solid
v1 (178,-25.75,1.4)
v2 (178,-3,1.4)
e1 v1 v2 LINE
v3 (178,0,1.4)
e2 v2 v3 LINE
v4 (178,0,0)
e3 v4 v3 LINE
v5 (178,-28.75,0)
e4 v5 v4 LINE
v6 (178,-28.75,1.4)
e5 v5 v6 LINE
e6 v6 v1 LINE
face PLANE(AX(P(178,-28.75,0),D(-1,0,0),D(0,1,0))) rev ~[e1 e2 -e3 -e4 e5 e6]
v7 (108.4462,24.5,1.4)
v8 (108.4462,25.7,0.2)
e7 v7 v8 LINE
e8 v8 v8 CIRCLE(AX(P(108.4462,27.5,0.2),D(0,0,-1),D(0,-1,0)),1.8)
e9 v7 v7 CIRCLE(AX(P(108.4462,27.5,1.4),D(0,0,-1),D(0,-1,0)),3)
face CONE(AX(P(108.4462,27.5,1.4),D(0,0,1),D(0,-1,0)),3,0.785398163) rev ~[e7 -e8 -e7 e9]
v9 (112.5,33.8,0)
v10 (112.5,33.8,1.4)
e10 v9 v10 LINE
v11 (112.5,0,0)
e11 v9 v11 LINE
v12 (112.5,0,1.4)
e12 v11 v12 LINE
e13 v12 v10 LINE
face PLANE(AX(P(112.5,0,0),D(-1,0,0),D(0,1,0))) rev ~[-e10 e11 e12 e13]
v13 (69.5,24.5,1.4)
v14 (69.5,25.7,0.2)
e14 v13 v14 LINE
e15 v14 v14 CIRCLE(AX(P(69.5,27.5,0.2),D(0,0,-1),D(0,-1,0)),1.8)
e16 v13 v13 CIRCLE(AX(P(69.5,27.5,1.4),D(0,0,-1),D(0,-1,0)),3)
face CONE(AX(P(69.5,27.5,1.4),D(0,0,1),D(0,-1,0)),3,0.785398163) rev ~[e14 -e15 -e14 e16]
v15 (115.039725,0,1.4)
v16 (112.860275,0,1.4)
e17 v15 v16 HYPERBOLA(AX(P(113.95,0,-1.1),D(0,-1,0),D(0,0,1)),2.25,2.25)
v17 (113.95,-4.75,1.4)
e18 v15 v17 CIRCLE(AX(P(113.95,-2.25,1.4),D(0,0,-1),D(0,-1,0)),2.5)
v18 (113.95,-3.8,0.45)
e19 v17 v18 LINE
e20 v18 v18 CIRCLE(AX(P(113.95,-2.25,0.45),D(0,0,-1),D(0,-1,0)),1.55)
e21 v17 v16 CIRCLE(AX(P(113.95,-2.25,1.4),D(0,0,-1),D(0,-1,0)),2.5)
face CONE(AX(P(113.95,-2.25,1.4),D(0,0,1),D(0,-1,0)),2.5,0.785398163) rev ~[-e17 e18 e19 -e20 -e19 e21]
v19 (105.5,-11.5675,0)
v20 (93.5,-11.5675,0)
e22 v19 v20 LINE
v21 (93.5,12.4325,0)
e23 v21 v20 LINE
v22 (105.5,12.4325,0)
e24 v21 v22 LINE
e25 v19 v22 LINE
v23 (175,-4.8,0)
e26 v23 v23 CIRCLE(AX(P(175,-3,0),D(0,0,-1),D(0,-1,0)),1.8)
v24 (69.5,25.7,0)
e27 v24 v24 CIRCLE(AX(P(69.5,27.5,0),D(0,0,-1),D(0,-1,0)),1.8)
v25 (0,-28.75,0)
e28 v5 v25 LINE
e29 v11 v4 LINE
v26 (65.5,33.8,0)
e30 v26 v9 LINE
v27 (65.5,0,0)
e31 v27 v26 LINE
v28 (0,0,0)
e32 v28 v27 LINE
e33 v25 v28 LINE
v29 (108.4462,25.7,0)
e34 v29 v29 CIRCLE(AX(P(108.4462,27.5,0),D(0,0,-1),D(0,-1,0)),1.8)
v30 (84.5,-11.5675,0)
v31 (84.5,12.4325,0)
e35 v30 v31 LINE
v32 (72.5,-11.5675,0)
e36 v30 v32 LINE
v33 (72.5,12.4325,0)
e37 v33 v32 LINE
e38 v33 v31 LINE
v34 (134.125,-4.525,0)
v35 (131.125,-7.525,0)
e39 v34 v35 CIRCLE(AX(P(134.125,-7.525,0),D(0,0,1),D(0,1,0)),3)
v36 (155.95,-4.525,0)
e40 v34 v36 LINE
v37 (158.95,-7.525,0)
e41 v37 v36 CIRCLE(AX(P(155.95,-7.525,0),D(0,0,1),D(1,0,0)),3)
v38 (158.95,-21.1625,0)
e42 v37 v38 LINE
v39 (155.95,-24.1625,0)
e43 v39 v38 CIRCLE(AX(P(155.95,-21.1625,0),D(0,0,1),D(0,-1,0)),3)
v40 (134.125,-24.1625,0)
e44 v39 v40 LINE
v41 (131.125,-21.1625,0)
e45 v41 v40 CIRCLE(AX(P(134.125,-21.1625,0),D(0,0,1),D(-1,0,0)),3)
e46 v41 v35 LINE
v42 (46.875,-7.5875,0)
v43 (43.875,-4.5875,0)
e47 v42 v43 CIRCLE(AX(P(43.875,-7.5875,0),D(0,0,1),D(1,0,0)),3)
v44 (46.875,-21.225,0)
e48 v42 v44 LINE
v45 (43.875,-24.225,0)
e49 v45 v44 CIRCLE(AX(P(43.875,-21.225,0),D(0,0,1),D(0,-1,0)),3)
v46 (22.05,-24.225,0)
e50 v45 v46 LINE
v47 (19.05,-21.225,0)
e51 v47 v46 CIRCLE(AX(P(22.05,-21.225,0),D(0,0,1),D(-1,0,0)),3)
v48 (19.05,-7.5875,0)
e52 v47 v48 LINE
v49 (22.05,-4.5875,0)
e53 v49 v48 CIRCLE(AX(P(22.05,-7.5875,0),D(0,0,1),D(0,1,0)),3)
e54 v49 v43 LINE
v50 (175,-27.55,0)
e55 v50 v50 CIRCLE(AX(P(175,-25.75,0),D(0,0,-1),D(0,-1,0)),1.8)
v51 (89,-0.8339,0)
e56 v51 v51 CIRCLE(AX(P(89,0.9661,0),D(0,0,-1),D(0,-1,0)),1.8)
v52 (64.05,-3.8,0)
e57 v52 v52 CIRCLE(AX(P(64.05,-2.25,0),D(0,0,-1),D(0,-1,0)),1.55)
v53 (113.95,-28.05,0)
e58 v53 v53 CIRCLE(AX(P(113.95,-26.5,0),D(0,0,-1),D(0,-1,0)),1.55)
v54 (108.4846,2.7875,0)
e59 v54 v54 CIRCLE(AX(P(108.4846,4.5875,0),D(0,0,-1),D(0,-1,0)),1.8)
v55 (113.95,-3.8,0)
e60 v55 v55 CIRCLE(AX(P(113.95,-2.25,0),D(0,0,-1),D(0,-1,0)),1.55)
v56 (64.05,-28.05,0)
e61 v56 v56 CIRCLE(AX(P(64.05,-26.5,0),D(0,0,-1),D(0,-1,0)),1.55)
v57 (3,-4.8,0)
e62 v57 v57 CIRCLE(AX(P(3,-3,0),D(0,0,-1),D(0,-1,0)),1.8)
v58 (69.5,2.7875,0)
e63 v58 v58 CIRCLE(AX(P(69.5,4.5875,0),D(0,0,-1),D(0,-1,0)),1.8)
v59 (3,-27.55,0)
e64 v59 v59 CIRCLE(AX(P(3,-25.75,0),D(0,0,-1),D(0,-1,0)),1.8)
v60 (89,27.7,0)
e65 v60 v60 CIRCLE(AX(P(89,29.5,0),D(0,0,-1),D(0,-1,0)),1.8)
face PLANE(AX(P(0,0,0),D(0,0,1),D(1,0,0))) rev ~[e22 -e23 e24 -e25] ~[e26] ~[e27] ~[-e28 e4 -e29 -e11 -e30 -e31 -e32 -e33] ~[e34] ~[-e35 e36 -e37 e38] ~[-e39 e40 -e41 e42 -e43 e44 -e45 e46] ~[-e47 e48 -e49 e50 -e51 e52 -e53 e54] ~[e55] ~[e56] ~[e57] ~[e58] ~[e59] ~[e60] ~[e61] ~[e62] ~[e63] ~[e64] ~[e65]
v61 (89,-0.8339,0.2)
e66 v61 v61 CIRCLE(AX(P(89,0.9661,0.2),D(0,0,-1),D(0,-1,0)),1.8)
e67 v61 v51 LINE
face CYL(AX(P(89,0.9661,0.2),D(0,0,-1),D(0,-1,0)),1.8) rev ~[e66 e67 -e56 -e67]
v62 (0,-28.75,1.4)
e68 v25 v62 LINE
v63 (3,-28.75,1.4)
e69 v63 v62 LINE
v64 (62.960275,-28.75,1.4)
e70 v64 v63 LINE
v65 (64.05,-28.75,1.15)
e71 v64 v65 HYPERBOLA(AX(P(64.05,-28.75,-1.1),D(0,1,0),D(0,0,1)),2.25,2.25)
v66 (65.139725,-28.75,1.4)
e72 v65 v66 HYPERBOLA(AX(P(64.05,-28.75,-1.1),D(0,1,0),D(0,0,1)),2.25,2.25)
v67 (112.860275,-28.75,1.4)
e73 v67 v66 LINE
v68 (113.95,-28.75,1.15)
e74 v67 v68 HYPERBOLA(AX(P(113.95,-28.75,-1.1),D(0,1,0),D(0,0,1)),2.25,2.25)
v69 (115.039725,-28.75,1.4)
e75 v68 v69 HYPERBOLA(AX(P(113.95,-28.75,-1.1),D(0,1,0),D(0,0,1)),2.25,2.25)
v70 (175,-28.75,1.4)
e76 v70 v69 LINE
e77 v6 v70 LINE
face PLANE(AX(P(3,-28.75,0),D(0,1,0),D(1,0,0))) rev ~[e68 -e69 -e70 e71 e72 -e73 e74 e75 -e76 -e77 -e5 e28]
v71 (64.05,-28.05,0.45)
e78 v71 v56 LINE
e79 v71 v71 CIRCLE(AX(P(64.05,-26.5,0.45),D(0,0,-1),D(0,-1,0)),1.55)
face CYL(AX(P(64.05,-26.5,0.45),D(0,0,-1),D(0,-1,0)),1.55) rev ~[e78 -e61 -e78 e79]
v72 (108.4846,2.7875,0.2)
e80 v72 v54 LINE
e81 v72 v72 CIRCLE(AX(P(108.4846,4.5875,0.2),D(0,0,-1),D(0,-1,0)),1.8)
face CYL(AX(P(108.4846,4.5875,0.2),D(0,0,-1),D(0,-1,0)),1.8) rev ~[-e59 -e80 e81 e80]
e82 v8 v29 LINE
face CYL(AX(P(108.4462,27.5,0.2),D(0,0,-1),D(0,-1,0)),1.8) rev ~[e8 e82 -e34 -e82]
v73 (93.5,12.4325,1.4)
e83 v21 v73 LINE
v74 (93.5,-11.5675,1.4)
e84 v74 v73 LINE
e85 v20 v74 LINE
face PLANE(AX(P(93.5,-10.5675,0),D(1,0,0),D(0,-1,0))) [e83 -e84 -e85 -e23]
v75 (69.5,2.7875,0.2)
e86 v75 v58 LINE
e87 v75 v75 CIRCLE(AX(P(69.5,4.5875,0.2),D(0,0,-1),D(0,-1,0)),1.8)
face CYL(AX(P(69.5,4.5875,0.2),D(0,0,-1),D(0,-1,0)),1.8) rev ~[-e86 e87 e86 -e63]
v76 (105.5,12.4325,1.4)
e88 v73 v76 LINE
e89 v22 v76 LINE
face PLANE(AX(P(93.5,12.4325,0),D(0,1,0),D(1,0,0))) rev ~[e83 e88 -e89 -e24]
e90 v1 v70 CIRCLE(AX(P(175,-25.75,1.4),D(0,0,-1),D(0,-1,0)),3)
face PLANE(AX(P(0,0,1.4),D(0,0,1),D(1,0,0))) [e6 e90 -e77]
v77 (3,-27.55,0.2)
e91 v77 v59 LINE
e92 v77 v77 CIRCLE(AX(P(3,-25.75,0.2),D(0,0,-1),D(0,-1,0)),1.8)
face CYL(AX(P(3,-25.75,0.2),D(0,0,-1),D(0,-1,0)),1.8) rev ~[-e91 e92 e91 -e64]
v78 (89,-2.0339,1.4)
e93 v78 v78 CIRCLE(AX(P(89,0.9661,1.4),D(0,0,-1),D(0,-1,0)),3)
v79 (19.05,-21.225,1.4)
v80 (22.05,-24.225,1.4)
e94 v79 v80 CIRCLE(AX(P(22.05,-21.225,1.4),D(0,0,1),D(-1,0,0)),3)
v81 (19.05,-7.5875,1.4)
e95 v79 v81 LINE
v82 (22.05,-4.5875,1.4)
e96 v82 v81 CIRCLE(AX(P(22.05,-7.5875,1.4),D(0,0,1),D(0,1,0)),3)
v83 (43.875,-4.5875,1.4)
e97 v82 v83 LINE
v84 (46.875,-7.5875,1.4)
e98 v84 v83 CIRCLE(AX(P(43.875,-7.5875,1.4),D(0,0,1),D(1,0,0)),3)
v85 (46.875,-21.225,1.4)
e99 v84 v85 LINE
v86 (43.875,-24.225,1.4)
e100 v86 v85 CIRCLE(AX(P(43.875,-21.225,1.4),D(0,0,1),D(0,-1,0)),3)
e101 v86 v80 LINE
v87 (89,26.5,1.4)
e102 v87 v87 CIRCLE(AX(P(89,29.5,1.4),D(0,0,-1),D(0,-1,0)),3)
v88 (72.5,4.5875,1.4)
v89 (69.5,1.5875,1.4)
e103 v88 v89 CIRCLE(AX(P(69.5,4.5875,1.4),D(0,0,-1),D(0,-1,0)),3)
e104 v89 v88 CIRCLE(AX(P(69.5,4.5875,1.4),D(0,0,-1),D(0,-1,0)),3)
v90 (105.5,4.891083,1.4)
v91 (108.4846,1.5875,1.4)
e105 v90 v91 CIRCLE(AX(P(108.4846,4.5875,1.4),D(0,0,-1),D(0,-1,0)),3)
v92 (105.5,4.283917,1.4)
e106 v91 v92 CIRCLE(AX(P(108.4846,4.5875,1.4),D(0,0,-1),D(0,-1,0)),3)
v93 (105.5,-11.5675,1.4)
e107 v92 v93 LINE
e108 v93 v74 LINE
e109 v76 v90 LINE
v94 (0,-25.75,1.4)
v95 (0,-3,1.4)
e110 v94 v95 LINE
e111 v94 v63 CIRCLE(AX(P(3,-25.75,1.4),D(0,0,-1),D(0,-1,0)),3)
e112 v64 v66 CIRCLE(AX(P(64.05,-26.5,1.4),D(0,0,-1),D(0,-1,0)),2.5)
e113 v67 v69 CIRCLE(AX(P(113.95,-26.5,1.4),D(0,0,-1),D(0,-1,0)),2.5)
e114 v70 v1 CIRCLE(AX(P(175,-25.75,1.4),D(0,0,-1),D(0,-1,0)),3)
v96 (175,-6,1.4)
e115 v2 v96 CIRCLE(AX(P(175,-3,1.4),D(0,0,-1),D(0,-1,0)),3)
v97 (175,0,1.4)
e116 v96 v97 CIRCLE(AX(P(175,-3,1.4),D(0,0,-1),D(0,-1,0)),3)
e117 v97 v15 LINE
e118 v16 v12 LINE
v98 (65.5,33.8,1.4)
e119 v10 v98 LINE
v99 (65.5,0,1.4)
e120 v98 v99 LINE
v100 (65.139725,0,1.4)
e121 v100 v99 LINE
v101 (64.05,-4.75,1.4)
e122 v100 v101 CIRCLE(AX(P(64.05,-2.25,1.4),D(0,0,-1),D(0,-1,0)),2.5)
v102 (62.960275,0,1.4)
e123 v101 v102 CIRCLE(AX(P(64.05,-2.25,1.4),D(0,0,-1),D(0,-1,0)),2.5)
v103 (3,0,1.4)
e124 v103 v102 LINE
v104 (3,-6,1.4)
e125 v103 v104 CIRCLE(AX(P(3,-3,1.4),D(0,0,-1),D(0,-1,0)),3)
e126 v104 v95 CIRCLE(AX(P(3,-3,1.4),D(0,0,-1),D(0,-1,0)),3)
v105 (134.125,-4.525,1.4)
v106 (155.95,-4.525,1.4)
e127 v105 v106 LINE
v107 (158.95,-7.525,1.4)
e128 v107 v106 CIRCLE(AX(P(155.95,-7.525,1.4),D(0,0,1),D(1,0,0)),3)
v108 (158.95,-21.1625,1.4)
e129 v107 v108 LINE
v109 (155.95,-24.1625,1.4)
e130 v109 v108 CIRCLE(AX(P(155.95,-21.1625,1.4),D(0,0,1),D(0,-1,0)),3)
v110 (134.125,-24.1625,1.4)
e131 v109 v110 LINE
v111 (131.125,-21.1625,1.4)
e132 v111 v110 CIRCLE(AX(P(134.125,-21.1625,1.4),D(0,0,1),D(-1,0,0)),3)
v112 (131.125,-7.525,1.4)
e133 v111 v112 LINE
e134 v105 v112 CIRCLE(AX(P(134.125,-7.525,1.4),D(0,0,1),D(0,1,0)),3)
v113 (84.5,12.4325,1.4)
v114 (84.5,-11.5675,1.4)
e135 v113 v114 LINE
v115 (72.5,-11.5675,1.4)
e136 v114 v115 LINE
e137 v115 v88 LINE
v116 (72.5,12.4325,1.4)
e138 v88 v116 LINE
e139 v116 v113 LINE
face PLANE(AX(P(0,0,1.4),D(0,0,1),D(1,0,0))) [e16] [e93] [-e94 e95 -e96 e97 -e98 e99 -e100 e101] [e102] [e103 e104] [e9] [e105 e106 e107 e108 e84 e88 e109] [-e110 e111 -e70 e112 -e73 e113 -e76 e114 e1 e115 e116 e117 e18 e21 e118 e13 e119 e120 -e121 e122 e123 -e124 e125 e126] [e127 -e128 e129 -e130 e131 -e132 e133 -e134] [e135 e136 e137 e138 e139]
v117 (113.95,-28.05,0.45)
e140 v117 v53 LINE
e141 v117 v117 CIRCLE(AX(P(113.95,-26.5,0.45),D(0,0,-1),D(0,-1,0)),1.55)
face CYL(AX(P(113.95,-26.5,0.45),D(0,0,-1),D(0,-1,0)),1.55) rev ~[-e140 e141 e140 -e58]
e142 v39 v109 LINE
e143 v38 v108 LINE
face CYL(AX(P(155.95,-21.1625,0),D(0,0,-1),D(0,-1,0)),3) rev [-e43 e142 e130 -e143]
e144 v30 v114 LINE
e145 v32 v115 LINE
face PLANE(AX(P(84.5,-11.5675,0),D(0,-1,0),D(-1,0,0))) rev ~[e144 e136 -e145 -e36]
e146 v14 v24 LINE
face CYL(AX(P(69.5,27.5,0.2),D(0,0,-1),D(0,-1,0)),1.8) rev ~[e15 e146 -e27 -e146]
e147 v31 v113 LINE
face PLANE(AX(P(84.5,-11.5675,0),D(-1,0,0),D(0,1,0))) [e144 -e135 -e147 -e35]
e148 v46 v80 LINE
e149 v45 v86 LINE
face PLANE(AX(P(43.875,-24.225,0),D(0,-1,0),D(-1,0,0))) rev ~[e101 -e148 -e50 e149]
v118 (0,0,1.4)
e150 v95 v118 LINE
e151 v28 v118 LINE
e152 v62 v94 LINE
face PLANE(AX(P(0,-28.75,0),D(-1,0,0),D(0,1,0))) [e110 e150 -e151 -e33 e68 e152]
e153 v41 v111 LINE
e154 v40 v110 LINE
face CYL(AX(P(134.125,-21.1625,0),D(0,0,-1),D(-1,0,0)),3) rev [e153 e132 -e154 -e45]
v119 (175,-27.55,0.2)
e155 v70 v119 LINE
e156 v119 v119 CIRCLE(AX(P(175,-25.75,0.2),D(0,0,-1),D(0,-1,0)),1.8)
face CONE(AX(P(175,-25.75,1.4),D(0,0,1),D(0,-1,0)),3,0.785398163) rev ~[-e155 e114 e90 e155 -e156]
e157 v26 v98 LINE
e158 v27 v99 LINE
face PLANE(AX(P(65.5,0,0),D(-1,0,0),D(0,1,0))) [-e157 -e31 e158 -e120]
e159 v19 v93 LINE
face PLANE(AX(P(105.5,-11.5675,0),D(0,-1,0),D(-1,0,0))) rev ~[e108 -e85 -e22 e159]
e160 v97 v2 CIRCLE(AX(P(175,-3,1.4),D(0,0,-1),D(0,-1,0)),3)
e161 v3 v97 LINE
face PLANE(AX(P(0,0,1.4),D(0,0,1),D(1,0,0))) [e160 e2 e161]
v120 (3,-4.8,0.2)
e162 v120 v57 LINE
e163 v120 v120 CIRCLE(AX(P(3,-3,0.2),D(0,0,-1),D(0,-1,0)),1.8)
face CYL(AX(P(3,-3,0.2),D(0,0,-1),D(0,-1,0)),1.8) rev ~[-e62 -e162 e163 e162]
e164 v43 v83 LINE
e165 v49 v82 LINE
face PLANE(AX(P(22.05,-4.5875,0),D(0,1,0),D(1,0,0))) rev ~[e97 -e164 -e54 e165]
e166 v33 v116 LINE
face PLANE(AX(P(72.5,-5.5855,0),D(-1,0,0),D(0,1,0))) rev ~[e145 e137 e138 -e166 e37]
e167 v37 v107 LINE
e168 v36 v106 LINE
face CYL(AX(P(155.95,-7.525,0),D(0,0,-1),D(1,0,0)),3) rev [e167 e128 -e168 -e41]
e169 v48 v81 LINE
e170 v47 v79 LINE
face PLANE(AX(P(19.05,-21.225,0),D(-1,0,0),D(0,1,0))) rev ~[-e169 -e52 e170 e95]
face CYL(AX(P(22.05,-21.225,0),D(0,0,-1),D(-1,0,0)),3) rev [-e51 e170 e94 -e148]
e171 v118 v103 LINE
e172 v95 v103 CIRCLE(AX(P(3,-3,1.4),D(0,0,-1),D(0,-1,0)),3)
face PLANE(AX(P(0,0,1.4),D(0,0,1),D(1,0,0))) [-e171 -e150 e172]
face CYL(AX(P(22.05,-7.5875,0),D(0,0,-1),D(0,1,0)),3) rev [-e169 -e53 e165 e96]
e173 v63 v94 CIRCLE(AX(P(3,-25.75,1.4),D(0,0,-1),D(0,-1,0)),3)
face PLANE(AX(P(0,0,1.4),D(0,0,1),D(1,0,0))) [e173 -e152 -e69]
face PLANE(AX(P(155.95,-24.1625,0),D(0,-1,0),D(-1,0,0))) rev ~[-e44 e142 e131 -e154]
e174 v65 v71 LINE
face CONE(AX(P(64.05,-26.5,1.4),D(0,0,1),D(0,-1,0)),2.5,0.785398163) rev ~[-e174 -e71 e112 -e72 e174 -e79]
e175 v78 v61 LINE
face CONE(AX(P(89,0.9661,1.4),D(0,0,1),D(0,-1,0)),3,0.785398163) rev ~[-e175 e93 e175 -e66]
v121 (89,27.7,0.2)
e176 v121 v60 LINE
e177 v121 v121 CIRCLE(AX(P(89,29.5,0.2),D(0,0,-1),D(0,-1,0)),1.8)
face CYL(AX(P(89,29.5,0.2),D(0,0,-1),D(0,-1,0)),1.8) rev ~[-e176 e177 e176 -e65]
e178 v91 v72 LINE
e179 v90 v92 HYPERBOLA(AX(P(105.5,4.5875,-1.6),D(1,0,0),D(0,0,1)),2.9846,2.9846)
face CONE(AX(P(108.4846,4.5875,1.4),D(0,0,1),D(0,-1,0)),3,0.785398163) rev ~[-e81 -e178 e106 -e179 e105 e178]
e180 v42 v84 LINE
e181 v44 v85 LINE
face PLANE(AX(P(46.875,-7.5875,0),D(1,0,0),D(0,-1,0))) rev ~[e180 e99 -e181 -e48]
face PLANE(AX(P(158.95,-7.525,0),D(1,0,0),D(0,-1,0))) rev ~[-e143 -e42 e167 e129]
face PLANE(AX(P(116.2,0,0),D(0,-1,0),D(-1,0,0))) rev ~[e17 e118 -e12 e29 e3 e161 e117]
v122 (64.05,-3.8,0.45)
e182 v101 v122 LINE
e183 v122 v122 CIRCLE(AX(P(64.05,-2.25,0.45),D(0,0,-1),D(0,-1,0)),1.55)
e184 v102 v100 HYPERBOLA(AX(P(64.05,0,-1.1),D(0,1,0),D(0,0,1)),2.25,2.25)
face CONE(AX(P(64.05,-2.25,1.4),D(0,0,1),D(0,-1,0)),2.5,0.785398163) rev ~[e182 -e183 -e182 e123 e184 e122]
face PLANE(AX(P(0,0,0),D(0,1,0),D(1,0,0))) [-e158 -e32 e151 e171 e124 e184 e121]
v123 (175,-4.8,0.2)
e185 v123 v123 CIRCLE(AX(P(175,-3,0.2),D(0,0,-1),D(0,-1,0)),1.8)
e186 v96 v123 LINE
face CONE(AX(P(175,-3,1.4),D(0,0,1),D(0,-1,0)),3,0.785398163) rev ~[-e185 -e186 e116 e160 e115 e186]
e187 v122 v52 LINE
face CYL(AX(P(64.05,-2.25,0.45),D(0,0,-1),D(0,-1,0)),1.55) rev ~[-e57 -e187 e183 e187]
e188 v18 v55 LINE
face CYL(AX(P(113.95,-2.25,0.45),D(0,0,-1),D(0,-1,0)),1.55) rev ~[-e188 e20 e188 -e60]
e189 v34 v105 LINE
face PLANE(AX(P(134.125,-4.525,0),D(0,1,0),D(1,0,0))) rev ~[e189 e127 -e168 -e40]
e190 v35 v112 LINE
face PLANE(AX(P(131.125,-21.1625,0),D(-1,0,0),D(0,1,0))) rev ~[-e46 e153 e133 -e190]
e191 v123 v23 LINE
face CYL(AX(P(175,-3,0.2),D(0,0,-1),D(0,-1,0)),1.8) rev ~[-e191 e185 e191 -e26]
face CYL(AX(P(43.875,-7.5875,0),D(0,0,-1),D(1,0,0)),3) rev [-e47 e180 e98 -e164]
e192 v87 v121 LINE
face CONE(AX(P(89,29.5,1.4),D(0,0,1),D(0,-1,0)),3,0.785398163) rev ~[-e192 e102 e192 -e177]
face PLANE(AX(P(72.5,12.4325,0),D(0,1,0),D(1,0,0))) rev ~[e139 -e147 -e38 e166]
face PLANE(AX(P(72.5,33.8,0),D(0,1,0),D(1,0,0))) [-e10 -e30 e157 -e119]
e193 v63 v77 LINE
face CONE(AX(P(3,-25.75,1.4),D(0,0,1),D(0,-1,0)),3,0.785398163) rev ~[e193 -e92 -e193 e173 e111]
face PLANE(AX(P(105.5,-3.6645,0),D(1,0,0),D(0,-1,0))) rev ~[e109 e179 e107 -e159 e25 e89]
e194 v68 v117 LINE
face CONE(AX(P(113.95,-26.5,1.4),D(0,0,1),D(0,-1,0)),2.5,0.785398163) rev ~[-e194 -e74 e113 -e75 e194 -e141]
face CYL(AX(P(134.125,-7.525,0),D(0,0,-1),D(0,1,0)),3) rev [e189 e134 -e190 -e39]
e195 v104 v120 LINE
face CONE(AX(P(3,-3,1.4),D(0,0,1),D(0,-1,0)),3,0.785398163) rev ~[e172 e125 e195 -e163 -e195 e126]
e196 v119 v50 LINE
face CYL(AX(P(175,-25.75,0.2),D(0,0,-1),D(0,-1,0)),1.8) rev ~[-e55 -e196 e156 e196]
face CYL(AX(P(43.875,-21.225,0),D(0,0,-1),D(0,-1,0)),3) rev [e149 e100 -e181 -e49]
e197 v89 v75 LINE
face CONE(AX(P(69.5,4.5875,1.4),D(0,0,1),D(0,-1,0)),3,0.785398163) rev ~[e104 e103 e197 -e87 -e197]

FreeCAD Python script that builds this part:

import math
import FreeCAD as App
import Part
import Sketcher

doc = App.newDocument("Part")
body = doc.addObject("PartDesign::Body", "Body")

# Sketch on XY plane
sketch1 = doc.addObject("Sketcher::SketchObject", "Sketch")
body.addObject(sketch1)
sketch1.AttachmentSupport = (doc.XY_Plane, [""])
sketch1.MapMode = "FlatFace"
sketch1.addGeometry(Part.LineSegment(App.Vector(0, 0, 0), App.Vector(0, -28.8, 0)), False)
sketch1.addGeometry(Part.LineSegment(App.Vector(0, -28.8, 0), App.Vector(178, -28.8, 0)), False)
sketch1.addGeometry(Part.LineSegment(App.Vector(178, -28.8, 0), App.Vector(178, 0, 0)), False)
sketch1.addGeometry(Part.LineSegment(App.Vector(178, 0, 0), App.Vector(112.5, 0, 0)), False)
sketch1.addGeometry(Part.LineSegment(App.Vector(112.5, 0, 0), App.Vector(112.5, 33.8, 0)), False)
sketch1.addGeometry(Part.LineSegment(App.Vector(112.5, 33.8, 0), App.Vector(65.5, 33.8, 0)), False)
sketch1.addGeometry(Part.LineSegment(App.Vector(65.5, 33.8, 0), App.Vector(65.5, 0, 0)), False)
sketch1.addGeometry(Part.LineSegment(App.Vector(65.5, 0, 0), App.Vector(0, 0, 0)), False)
sketch1.addGeometry(Part.LineSegment(App.Vector(43.9, -24.2, 0), App.Vector(22.1, -24.2, 0)), False)
sketch1.addGeometry(Part.ArcOfCircle(Part.Circle(App.Vector(22.1, -21.2, 0), App.Vector(0, 0, 1), 3), math.radians(180), math.radians(270)), False)
sketch1.addGeometry(Part.LineSegment(App.Vector(19.1, -21.2, 0), App.Vector(19.1, -7.6, 0)), False)
sketch1.addGeometry(Part.ArcOfCircle(Part.Circle(App.Vector(22.1, -7.6, 0), App.Vector(0, 0, 1), 3), math.radians(90), math.radians(180)), False)
sketch1.addGeometry(Part.LineSegment(App.Vector(22.1, -4.6, 0), App.Vector(43.9, -4.6, 0)), False)
sketch1.addGeometry(Part.ArcOfCircle(Part.Circle(App.Vector(43.9, -7.6, 0), App.Vector(0, 0, 1), 3), math.radians(0), math.radians(90)), False)
sketch1.addGeometry(Part.LineSegment(App.Vector(46.9, -7.6, 0), App.Vector(46.9, -21.2, 0)), False)
sketch1.addGeometry(Part.ArcOfCircle(Part.Circle(App.Vector(43.9, -21.2, 0), App.Vector(0, 0, 1), 3), math.radians(-90), math.radians(0)), False)
sketch1.addGeometry(Part.LineSegment(App.Vector(72.5, 12.4, 0), App.Vector(84.5, 12.4, 0)), False)
sketch1.addGeometry(Part.LineSegment(App.Vector(84.5, 12.4, 0), App.Vector(84.5, -11.6, 0)), False)
sketch1.addGeometry(Part.LineSegment(App.Vector(84.5, -11.6, 0), App.Vector(72.5, -11.6, 0)), False)
sketch1.addGeometry(Part.LineSegment(App.Vector(72.5, -11.6, 0), App.Vector(72.5, 12.4, 0)), False)
sketch1.addGeometry(Part.LineSegment(App.Vector(105.5, -11.6, 0), App.Vector(93.5, -11.6, 0)), False)
sketch1.addGeometry(Part.LineSegment(App.Vector(93.5, -11.6, 0), App.Vector(93.5, 12.4, 0)), False)
sketch1.addGeometry(Part.LineSegment(App.Vector(93.5, 12.4, 0), App.Vector(105.5, 12.4, 0)), False)
sketch1.addGeometry(Part.LineSegment(App.Vector(105.5, 12.4, 0), App.Vector(105.5, -11.6, 0)), False)
sketch1.addGeometry(Part.LineSegment(App.Vector(134.1, -4.5, 0), App.Vector(155.9, -4.5, 0)), False)
sketch1.addGeometry(Part.ArcOfCircle(Part.Circle(App.Vector(155.9, -7.5, 0), App.Vector(0, 0, 1), 3), math.radians(0), math.radians(90)), False)
sketch1.addGeometry(Part.LineSegment(App.Vector(158.9, -7.5, 0), App.Vector(158.9, -21.2, 0)), False)
sketch1.addGeometry(Part.ArcOfCircle(Part.Circle(App.Vector(155.9, -21.2, 0), App.Vector(0, 0, 1), 3), math.radians(-90), math.radians(0)), False)
sketch1.addGeometry(Part.LineSegment(App.Vector(155.9, -24.2, 0), App.Vector(134.1, -24.2, 0)), False)
sketch1.addGeometry(Part.ArcOfCircle(Part.Circle(App.Vector(134.1, -21.2, 0), App.Vector(0, 0, 1), 3), math.radians(180), math.radians(270)), False)
sketch1.addGeometry(Part.LineSegment(App.Vector(131.1, -21.2, 0), App.Vector(131.1, -7.5, 0)), False)
sketch1.addGeometry(Part.ArcOfCircle(Part.Circle(App.Vector(134.1, -7.5, 0), App.Vector(0, 0, 1), 3), math.radians(90), math.radians(180)), False)
sketch1.addConstraint(Sketcher.Constraint("Coincident", 0, 2, 1, 1))
sketch1.addConstraint(Sketcher.Constraint("Coincident", 1, 2, 2, 1))
sketch1.addConstraint(Sketcher.Constraint("Coincident", 2, 2, 3, 1))
sketch1.addConstraint(Sketcher.Constraint("Coincident", 3, 2, 4, 1))
sketch1.addConstraint(Sketcher.Constraint("Coincident", 4, 2, 5, 1))
sketch1.addConstraint(Sketcher.Constraint("Coincident", 5, 2, 6, 1))
sketch1.addConstraint(Sketcher.Constraint("Coincident", 6, 2, 7, 1))
sketch1.addConstraint(Sketcher.Constraint("Coincident", 7, 2, 0, 1))
sketch1.addConstraint(Sketcher.Constraint("Tangent", 8, 2, 9, 2))
sketch1.addConstraint(Sketcher.Constraint("Tangent", 9, 1, 10, 1))
sketch1.addConstraint(Sketcher.Constraint("Tangent", 10, 2, 11, 2))
sketch1.addConstraint(Sketcher.Constraint("Tangent", 11, 1, 12, 1))
sketch1.addConstraint(Sketcher.Constraint("Tangent", 12, 2, 13, 2))
sketch1.addConstraint(Sketcher.Constraint("Tangent", 13, 1, 14, 1))
sketch1.addConstraint(Sketcher.Constraint("Tangent", 14, 2, 15, 2))
sketch1.addConstraint(Sketcher.Constraint("Tangent", 15, 1, 8, 1))
sketch1.addConstraint(Sketcher.Constraint("Coincident", 16, 2, 17, 1))
sketch1.addConstraint(Sketcher.Constraint("Coincident", 17, 2, 18, 1))
sketch1.addConstraint(Sketcher.Constraint("Coincident", 18, 2, 19, 1))
sketch1.addConstraint(Sketcher.Constraint("Coincident", 19, 2, 16, 1))
sketch1.addConstraint(Sketcher.Constraint("Coincident", 20, 2, 21, 1))
sketch1.addConstraint(Sketcher.Constraint("Coincident", 21, 2, 22, 1))
sketch1.addConstraint(Sketcher.Constraint("Coincident", 22, 2, 23, 1))
sketch1.addConstraint(Sketcher.Constraint("Coincident", 23, 2, 20, 1))
sketch1.addConstraint(Sketcher.Constraint("Tangent", 24, 2, 25, 2))
sketch1.addConstraint(Sketcher.Constraint("Tangent", 25, 1, 26, 1))
sketch1.addConstraint(Sketcher.Constraint("Tangent", 26, 2, 27, 2))
sketch1.addConstraint(Sketcher.Constraint("Tangent", 27, 1, 28, 1))
sketch1.addConstraint(Sketcher.Constraint("Tangent", 28, 2, 29, 2))
sketch1.addConstraint(Sketcher.Constraint("Tangent", 29, 1, 30, 1))
sketch1.addConstraint(Sketcher.Constraint("Tangent", 30, 2, 31, 2))
sketch1.addConstraint(Sketcher.Constraint("Tangent", 31, 1, 24, 1))
sketch1.addConstraint(Sketcher.Constraint("Vertical", 0))
sketch1.addConstraint(Sketcher.Constraint("Horizontal", 1))
sketch1.addConstraint(Sketcher.Constraint("Vertical", 2))
sketch1.addConstraint(Sketcher.Constraint("Horizontal", 3))
sketch1.addConstraint(Sketcher.Constraint("Vertical", 4))
sketch1.addConstraint(Sketcher.Constraint("Horizontal", 5))
sketch1.addConstraint(Sketcher.Constraint("Vertical", 6))
sketch1.addConstraint(Sketcher.Constraint("Horizontal", 7))
sketch1.addConstraint(Sketcher.Constraint("Horizontal", 8))
sketch1.addConstraint(Sketcher.Constraint("Vertical", 10))
sketch1.addConstraint(Sketcher.Constraint("Horizontal", 12))
sketch1.addConstraint(Sketcher.Constraint("Vertical", 14))
sketch1.addConstraint(Sketcher.Constraint("Horizontal", 16))
sketch1.addConstraint(Sketcher.Constraint("Vertical", 17))
sketch1.addConstraint(Sketcher.Constraint("Horizontal", 18))
sketch1.addConstraint(Sketcher.Constraint("Vertical", 19))
sketch1.addConstraint(Sketcher.Constraint("Horizontal", 20))
sketch1.addConstraint(Sketcher.Constraint("Vertical", 21))
sketch1.addConstraint(Sketcher.Constraint("Horizontal", 22))
sketch1.addConstraint(Sketcher.Constraint("Vertical", 23))
sketch1.addConstraint(Sketcher.Constraint("Horizontal", 24))
sketch1.addConstraint(Sketcher.Constraint("Vertical", 26))
sketch1.addConstraint(Sketcher.Constraint("Horizontal", 28))
sketch1.addConstraint(Sketcher.Constraint("Vertical", 30))
sketch1.addConstraint(Sketcher.Constraint("Coincident", 7, 2, -1, 1))
sketch1.addConstraint(Sketcher.Constraint("Equal", 9, 11))
sketch1.addConstraint(Sketcher.Constraint("Equal", 11, 13))
sketch1.addConstraint(Sketcher.Constraint("Equal", 13, 15))
sketch1.addConstraint(Sketcher.Constraint("Equal", 15, 25))
sketch1.addConstraint(Sketcher.Constraint("Equal", 25, 27))
sketch1.addConstraint(Sketcher.Constraint("Equal", 27, 29))
sketch1.addConstraint(Sketcher.Constraint("Equal", 29, 31))
sketch1.addConstraint(Sketcher.Constraint("PointOnObject", 2, 2, -1))
sketch1.addConstraint(Sketcher.Constraint("Horizontal", 18, 2, 20, 2))
sketch1.addConstraint(Sketcher.Constraint("Horizontal", 19, 2, 21, 2))
sketch1.addConstraint(Sketcher.Constraint("Equal", 3, 7))
sketch1.addConstraint(Sketcher.Constraint("Equal", 18, 20))
sketch1.addConstraint(Sketcher.Constraint("Equal", 12, 24))
sketch1.addConstraint(Sketcher.Constraint("Equal", 14, 26))
sketch1.addConstraint(Sketcher.Constraint("Radius", 9, 3.0))
sketch1.addConstraint(Sketcher.Constraint("DistanceX", 1, 1, 1, 2, 178.0))
sketch1.addConstraint(Sketcher.Constraint("DistanceX", 5, 2, 5, 1, 47.0))
sketch1.addConstraint(Sketcher.Constraint("DistanceX", 16, 1, 16, 2, 12.0))
sketch1.addConstraint(Sketcher.Constraint("DistanceY", 17, 2, 17, 1, 24.0))
sketch1.addConstraint(Sketcher.Constraint("DistanceY", 4, 1, 4, 2, 33.8))
sketch1.addConstraint(Sketcher.Constraint("DistanceX", 6, 2, 16, 2, 19.0))
sketch1.addConstraint(Sketcher.Constraint("DistanceX", 17, 2, 20, 2, 9.0))
sketch1.addConstraint(Sketcher.Constraint("DistanceY", 0, 2, 0, 1, 28.75))
sketch1.addConstraint(Sketcher.Constraint("DistanceY", 15, 3, 25, 3, 13.7))
sketch1.addConstraint(Sketcher.Constraint("DistanceX", 11, 3, 25, 3, 133.9))
sketch1.addConstraint(Sketcher.Constraint("DistanceX", 8, 2, 8, 1, 21.825))
sketch1.addConstraint(Sketcher.Constraint("DistanceX", -1, 1, 9, 3, 22.05))
sketch1.addConstraint(Sketcher.Constraint("DistanceY", 13, 1, 16, 2, 20.02))
sketch1.addConstraint(Sketcher.Constraint("DistanceY", 10, 1, 10, 2, 13.6375))
sketch1.addConstraint(Sketcher.Constraint("DistanceY", 9, 3, -1, 1, 21.225))
pad1 = doc.addObject("PartDesign::Pad", "Pad")
body.addObject(pad1)
pad1.Profile = sketch1
pad1.Length = 1.4

# Sketch on XY plane
sketch2 = doc.addObject("Sketcher::SketchObject", "Sketch001")
body.addObject(sketch2)
sketch2.AttachmentSupport = (doc.XY_Plane, [""])
sketch2.MapMode = "FlatFace"
sketch2.AttachmentOffset = App.Placement(App.Vector(0, 0, 1.4), App.Rotation())
sketch2.addGeometry(Part.Circle(App.Vector(3, -3, 0), App.Vector(0, 0, 1), 1.8), False)
sketch2.addGeometry(Part.Circle(App.Vector(3, -25.8, 0), App.Vector(0, 0, 1), 1.8), False)
sketch2.addGeometry(Part.Circle(App.Vector(175, -3, 0), App.Vector(0, 0, 1), 1.8), False)
sketch2.addGeometry(Part.Circle(App.Vector(175, -25.8, 0), App.Vector(0, 0, 1), 1.8), False)
sketch2.addGeometry(Part.Circle(App.Vector(108.5, 4.6, 0), App.Vector(0, 0, 1), 1.8), False)
sketch2.addGeometry(Part.Circle(App.Vector(89, 1, 0), App.Vector(0, 0, 1), 1.8), False)
sketch2.addGeometry(Part.Circle(App.Vector(69.5, 4.6, 0), App.Vector(0, 0, 1), 1.8), False)
sketch2.addGeometry(Part.Circle(App.Vector(69.5, 27.5, 0), App.Vector(0, 0, 1), 1.8), False)
sketch2.addGeometry(Part.Circle(App.Vector(89, 29.5, 0), App.Vector(0, 0, 1), 1.8), False)
sketch2.addGeometry(Part.Circle(App.Vector(108.4, 27.5, 0), App.Vector(0, 0, 1), 1.8), False)
sketch2.addConstraint(Sketcher.Constraint("Equal", 0, 1))
sketch2.addConstraint(Sketcher.Constraint("Equal", 1, 2))
sketch2.addConstraint(Sketcher.Constraint("Equal", 2, 3))
sketch2.addConstraint(Sketcher.Constraint("Equal", 3, 4))
sketch2.addConstraint(Sketcher.Constraint("Equal", 4, 5))
sketch2.addConstraint(Sketcher.Constraint("Equal", 5, 6))
sketch2.addConstraint(Sketcher.Constraint("Equal", 6, 7))
sketch2.addConstraint(Sketcher.Constraint("Equal", 7, 8))
sketch2.addConstraint(Sketcher.Constraint("Equal", 8, 9))
sketch2.addConstraint(Sketcher.Constraint("Horizontal", 0, 3, 2, 3))
sketch2.addConstraint(Sketcher.Constraint("Horizontal", 1, 3, 3, 3))
sketch2.addConstraint(Sketcher.Constraint("Horizontal", 4, 3, 6, 3))
sketch2.addConstraint(Sketcher.Constraint("Horizontal", 7, 3, 9, 3))
sketch2.addConstraint(Sketcher.Constraint("Vertical", 0, 3, 1, 3))
sketch2.addConstraint(Sketcher.Constraint("Vertical", 2, 3, 3, 3))
sketch2.addConstraint(Sketcher.Constraint("Vertical", 6, 3, 7, 3))
sketch2.addConstraint(Sketcher.Constraint("Vertical", 5, 3, 8, 3))
sketch2.addConstraint(Sketcher.Constraint("Diameter", 0, 3.6))
sketch2.addConstraint(Sketcher.Constraint("DistanceX", -1, 1, 0, 3, 3.0))
sketch2.addConstraint(Sketcher.Constraint("DistanceY", 0, 3, -1, 1, 3.0))
sketch2.addConstraint(Sketcher.Constraint("DistanceX", -1, 1, 2, 3, 175.0))
sketch2.addConstraint(Sketcher.Constraint("DistanceX", -1, 1, 5, 3, 89.0))
sketch2.addConstraint(Sketcher.Constraint("DistanceY", 7, 3, 8, 3, 2.0))
sketch2.addConstraint(Sketcher.Constraint("DistanceX", -1, 1, 6, 3, 69.5))
sketch2.addConstraint(Sketcher.Constraint("DistanceY", -1, 1, 7, 3, 27.5))
sketch2.addConstraint(Sketcher.Constraint("DistanceY", 1, 3, -1, 1, 25.75))
sketch2.addConstraint(Sketcher.Constraint("DistanceY", -1, 1, 5, 3, 0.966))
sketch2.addConstraint(Sketcher.Constraint("DistanceX", -1, 1, 4, 3, 108.4846))
sketch2.addConstraint(Sketcher.Constraint("DistanceY", -1, 1, 4, 3, 4.5875))
sketch2.addConstraint(Sketcher.Constraint("DistanceX", -1, 1, 9, 3, 108.4462))
doc.recompute()
hole = doc.addObject("PartDesign::Hole", "Hole")
body.addObject(hole)
hole.Profile = sketch2
hole.ThreadType = "None"
hole.Diameter = 3.6
hole.DepthType = "ThroughAll"
hole.HoleCutType = "Countersink"
hole.HoleCutDiameter = 6
hole.HoleCutCountersinkAngle = 90

# Sketch on XY plane
sketch3 = doc.addObject("Sketcher::SketchObject", "Sketch002")
body.addObject(sketch3)
sketch3.AttachmentSupport = (doc.XY_Plane, [""])
sketch3.MapMode = "FlatFace"
sketch3.AttachmentOffset = App.Placement(App.Vector(0, 0, 1.4), App.Rotation())
sketch3.addGeometry(Part.Circle(App.Vector(64, -2.2, 0), App.Vector(0, 0, 1), 1.6), False)
sketch3.addGeometry(Part.Circle(App.Vector(64, -26.5, 0), App.Vector(0, 0, 1), 1.6), False)
sketch3.addGeometry(Part.Circle(App.Vector(114, -26.5, 0), App.Vector(0, 0, 1), 1.6), False)
sketch3.addGeometry(Part.Circle(App.Vector(114, -2.2, 0), App.Vector(0, 0, 1), 1.6), False)
sketch3.addConstraint(Sketcher.Constraint("Equal", 0, 1))
sketch3.addConstraint(Sketcher.Constraint("Equal", 1, 2))
sketch3.addConstraint(Sketcher.Constraint("Equal", 2, 3))
sketch3.addConstraint(Sketcher.Constraint("Horizontal", 1, 3, 2, 3))
sketch3.addConstraint(Sketcher.Constraint("Horizontal", 0, 3, 3, 3))
sketch3.addConstraint(Sketcher.Constraint("Vertical", 0, 3, 1, 3))
sketch3.addConstraint(Sketcher.Constraint("Vertical", 2, 3, 3, 3))
sketch3.addConstraint(Sketcher.Constraint("Diameter", 0, 3.1))
sketch3.addConstraint(Sketcher.Constraint("DistanceY", 1, 3, -1, 1, 26.5))
sketch3.addConstraint(Sketcher.Constraint("DistanceX", 1, 3, 2, 3, 49.9))
sketch3.addConstraint(Sketcher.Constraint("DistanceX", -1, 1, 0, 3, 64.05))
sketch3.addConstraint(Sketcher.Constraint("DistanceY", 0, 3, -1, 1, 2.25))
doc.recompute()
hole2 = doc.addObject("PartDesign::Hole", "Hole001")
body.addObject(hole2)
hole2.Profile = sketch3
hole2.ThreadType = "None"
hole2.Diameter = 3.1
hole2.DepthType = "ThroughAll"
hole2.HoleCutType = "Countersink"
hole2.HoleCutDiameter = 5
hole2.HoleCutCountersinkAngle = 90

doc.recompute()
